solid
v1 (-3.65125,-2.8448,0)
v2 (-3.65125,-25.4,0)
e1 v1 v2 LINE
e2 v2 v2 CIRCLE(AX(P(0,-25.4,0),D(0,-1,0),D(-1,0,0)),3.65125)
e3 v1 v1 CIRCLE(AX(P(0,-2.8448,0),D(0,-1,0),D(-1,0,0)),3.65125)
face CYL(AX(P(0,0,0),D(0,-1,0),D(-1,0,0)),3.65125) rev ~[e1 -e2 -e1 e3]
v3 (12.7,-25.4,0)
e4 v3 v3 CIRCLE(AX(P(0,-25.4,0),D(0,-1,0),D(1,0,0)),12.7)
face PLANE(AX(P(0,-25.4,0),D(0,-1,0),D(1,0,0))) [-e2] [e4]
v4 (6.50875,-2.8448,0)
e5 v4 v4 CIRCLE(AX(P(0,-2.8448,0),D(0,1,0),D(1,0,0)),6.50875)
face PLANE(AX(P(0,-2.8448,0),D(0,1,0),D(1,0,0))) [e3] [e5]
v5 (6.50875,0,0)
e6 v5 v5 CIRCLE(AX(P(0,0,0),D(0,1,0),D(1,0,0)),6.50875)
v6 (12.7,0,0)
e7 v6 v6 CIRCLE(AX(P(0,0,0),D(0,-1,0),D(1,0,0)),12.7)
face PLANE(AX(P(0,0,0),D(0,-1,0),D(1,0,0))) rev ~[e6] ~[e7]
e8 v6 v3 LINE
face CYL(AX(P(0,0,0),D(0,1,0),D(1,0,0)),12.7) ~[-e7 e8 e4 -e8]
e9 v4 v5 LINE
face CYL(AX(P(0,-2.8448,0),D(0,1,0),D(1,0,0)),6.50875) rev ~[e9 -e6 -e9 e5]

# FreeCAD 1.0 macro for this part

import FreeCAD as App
import Part
import Sketcher

V = App.Vector
Q = App.Units.Quantity

doc = App.newDocument("Part")
body = doc.addObject("PartDesign::Body", "Body")

sketch1 = body.newObject("Sketcher::SketchObject", "Sketch")
sketch1.AttachmentSupport = (doc.getObject("XZ_Plane"), [""])
sketch1.MapMode = "FlatFace"
sketch1.addGeometry(Part.Circle(V(0, 0, 0), V(0, 0, 1), 12.7), False)
sketch1.addConstraint([
    Sketcher.Constraint("Coincident", 0, 3, -1, 1),
    Sketcher.Constraint("Diameter", 0, Q("1 in")),
])
pad1 = body.newObject("PartDesign::Pad", "Pad")
pad1.Profile = sketch1
pad1.Length = Q("1 in")

sketch2 = body.newObject("Sketcher::SketchObject", "Sketch001")
sketch2.AttachmentSupport = (doc.getObject("XZ_Plane"), [""])
sketch2.MapMode = "FlatFace"
sketch2.addGeometry(Part.Circle(V(0, 0, 0), V(0, 0, 1), 3.65125), False)
sketch2.addConstraint([
    Sketcher.Constraint("Coincident", 0, 3, -1, 1),
    Sketcher.Constraint("Diameter", 0, Q("0.2875 in")),
])
doc.recompute()
hole = body.newObject("PartDesign::Hole", "Hole")
hole.Profile = sketch2
hole.ThreadType = "None"
hole.Diameter = Q("0.2875 in")
hole.DepthType = "ThroughAll"
hole.HoleCutType = "Counterbore"
hole.HoleCutDiameter = Q("0.5125 in")
hole.HoleCutDepth = Q("0.112 in")
hole.Reversed = True

doc.recompute()
